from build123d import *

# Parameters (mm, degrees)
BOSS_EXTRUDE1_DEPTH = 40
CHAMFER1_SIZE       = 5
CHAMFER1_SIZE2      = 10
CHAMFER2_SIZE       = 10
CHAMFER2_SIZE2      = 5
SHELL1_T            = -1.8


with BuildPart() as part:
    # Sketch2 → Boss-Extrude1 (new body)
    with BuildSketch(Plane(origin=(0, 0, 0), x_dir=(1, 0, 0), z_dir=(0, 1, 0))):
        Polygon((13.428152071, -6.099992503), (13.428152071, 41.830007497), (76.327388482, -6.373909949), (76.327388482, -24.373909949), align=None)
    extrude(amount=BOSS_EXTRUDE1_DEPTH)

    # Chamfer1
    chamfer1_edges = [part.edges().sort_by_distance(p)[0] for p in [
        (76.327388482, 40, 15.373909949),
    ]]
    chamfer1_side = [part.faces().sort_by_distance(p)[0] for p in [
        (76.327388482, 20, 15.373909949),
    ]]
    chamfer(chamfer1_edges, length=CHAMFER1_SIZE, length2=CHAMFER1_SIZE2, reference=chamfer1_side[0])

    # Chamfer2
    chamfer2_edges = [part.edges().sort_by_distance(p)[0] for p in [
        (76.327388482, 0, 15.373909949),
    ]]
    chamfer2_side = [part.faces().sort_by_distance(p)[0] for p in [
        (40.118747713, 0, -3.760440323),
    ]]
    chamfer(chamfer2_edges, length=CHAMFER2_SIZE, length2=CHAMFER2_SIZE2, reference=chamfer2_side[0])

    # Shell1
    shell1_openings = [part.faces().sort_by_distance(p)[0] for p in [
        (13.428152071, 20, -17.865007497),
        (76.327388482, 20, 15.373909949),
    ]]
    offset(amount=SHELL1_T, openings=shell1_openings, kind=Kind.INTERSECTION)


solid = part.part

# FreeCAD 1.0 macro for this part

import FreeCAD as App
import Part
import Sketcher
from FreeCAD import Vector
Q = App.Units.Quantity


def edges_at(feature, points):
    """Names of the edges that pass closest to the given points."""
    edges = feature.Shape.Edges
    near = lambda p: min(range(len(edges)), key=lambda i: edges[i].distToShape(Part.Vertex(*p))[0])
    return sorted({f"Edge{near(p) + 1}" for p in points})


def faces_at(feature, points):
    """Names of the faces that lie closest to the given points."""
    faces = feature.Shape.Faces
    near = lambda p: min(range(len(faces)), key=lambda i: faces[i].distToShape(Part.Vertex(*p))[0])
    return sorted({f"Face{near(p) + 1}" for p in points})


def add_polygon(sketch, points):
    """Adds a closed chain of lines whose ends are joined by coincident constraints."""
    first, n = sketch.GeometryCount, len(points)
    for a, b in zip(points, points[1:] + points[:1]):
        sketch.addGeometry(Part.LineSegment(App.Vector(*a, 0), App.Vector(*b, 0)), False)
    for i in range(n):
        sketch.addConstraint(Sketcher.Constraint("Coincident", first + i, 2, first + (i + 1) % n, 1))

doc = App.newDocument("Part")
body = doc.addObject("PartDesign::Body", "Body")

# Sketch on XZ plane
sketch1 = doc.addObject("Sketcher::SketchObject", "Sketch")
body.addObject(sketch1)
sketch1.AttachmentSupport = (doc.XZ_Plane, [""])
sketch1.MapMode = "FlatFace"
add_polygon(sketch1, [(13.428152, -41.830007), (13.428152, 6.099993), (76.327388, 24.37391), (76.327388, 6.37391)])  # lines 0-3
sketch1.addConstraint(Sketcher.Constraint("Vertical", 0))
sketch1.addConstraint(Sketcher.Constraint("Vertical", 2))
sketch1.addConstraint(Sketcher.Constraint("DistanceY", 2, 2, 2, 1, Q("18 mm")))
sketch1.addConstraint(Sketcher.Constraint("Angle", 1, Q("16.2 deg")))
sketch1.addConstraint(Sketcher.Constraint("Distance", 1, Q("65.5 mm")))
sketch1.addConstraint(Sketcher.Constraint("DistanceY", 0, 1, 0, 2, Q("47.93 mm")))
sketch1.addConstraint(Sketcher.Constraint("DistanceX", -1, 1, 1, 2, Q("76.327388 mm")))
sketch1.addConstraint(Sketcher.Constraint("DistanceY", -1, 1, 1, 2, Q("24.37391 mm")))
pad1 = doc.addObject("PartDesign::Pad", "Pad")
body.addObject(pad1)
pad1.Profile = sketch1
pad1.Length = 40
pad1.Reversed = True
doc.recompute()

chamfer = doc.addObject("PartDesign::Chamfer", "Chamfer")
body.addObject(chamfer)
chamfer.Base = (pad1, edges_at(pad1, [(76.327, 40, 15.374)]))
chamfer.ChamferType = "Two distances"
chamfer.Size = 5
chamfer.Size2 = 10
doc.recompute()

chamfer2 = doc.addObject("PartDesign::Chamfer", "Chamfer001")
body.addObject(chamfer2)
chamfer2.Base = (chamfer, edges_at(chamfer, [(76.327, 0, 15.374)]))
chamfer2.ChamferType = "Two distances"
chamfer2.Size = 10
chamfer2.Size2 = 5
chamfer2.FlipDirection = True
doc.recompute()

thickness = doc.addObject("PartDesign::Thickness", "Thickness")
body.addObject(thickness)
thickness.Base = (chamfer2, faces_at(chamfer2, [(13.428, 20, -17.865), (76.327, 20, 15.374)]))
thickness.Value = 1.8
thickness.Reversed = True
thickness.Join = "Intersection"

doc.recompute()
